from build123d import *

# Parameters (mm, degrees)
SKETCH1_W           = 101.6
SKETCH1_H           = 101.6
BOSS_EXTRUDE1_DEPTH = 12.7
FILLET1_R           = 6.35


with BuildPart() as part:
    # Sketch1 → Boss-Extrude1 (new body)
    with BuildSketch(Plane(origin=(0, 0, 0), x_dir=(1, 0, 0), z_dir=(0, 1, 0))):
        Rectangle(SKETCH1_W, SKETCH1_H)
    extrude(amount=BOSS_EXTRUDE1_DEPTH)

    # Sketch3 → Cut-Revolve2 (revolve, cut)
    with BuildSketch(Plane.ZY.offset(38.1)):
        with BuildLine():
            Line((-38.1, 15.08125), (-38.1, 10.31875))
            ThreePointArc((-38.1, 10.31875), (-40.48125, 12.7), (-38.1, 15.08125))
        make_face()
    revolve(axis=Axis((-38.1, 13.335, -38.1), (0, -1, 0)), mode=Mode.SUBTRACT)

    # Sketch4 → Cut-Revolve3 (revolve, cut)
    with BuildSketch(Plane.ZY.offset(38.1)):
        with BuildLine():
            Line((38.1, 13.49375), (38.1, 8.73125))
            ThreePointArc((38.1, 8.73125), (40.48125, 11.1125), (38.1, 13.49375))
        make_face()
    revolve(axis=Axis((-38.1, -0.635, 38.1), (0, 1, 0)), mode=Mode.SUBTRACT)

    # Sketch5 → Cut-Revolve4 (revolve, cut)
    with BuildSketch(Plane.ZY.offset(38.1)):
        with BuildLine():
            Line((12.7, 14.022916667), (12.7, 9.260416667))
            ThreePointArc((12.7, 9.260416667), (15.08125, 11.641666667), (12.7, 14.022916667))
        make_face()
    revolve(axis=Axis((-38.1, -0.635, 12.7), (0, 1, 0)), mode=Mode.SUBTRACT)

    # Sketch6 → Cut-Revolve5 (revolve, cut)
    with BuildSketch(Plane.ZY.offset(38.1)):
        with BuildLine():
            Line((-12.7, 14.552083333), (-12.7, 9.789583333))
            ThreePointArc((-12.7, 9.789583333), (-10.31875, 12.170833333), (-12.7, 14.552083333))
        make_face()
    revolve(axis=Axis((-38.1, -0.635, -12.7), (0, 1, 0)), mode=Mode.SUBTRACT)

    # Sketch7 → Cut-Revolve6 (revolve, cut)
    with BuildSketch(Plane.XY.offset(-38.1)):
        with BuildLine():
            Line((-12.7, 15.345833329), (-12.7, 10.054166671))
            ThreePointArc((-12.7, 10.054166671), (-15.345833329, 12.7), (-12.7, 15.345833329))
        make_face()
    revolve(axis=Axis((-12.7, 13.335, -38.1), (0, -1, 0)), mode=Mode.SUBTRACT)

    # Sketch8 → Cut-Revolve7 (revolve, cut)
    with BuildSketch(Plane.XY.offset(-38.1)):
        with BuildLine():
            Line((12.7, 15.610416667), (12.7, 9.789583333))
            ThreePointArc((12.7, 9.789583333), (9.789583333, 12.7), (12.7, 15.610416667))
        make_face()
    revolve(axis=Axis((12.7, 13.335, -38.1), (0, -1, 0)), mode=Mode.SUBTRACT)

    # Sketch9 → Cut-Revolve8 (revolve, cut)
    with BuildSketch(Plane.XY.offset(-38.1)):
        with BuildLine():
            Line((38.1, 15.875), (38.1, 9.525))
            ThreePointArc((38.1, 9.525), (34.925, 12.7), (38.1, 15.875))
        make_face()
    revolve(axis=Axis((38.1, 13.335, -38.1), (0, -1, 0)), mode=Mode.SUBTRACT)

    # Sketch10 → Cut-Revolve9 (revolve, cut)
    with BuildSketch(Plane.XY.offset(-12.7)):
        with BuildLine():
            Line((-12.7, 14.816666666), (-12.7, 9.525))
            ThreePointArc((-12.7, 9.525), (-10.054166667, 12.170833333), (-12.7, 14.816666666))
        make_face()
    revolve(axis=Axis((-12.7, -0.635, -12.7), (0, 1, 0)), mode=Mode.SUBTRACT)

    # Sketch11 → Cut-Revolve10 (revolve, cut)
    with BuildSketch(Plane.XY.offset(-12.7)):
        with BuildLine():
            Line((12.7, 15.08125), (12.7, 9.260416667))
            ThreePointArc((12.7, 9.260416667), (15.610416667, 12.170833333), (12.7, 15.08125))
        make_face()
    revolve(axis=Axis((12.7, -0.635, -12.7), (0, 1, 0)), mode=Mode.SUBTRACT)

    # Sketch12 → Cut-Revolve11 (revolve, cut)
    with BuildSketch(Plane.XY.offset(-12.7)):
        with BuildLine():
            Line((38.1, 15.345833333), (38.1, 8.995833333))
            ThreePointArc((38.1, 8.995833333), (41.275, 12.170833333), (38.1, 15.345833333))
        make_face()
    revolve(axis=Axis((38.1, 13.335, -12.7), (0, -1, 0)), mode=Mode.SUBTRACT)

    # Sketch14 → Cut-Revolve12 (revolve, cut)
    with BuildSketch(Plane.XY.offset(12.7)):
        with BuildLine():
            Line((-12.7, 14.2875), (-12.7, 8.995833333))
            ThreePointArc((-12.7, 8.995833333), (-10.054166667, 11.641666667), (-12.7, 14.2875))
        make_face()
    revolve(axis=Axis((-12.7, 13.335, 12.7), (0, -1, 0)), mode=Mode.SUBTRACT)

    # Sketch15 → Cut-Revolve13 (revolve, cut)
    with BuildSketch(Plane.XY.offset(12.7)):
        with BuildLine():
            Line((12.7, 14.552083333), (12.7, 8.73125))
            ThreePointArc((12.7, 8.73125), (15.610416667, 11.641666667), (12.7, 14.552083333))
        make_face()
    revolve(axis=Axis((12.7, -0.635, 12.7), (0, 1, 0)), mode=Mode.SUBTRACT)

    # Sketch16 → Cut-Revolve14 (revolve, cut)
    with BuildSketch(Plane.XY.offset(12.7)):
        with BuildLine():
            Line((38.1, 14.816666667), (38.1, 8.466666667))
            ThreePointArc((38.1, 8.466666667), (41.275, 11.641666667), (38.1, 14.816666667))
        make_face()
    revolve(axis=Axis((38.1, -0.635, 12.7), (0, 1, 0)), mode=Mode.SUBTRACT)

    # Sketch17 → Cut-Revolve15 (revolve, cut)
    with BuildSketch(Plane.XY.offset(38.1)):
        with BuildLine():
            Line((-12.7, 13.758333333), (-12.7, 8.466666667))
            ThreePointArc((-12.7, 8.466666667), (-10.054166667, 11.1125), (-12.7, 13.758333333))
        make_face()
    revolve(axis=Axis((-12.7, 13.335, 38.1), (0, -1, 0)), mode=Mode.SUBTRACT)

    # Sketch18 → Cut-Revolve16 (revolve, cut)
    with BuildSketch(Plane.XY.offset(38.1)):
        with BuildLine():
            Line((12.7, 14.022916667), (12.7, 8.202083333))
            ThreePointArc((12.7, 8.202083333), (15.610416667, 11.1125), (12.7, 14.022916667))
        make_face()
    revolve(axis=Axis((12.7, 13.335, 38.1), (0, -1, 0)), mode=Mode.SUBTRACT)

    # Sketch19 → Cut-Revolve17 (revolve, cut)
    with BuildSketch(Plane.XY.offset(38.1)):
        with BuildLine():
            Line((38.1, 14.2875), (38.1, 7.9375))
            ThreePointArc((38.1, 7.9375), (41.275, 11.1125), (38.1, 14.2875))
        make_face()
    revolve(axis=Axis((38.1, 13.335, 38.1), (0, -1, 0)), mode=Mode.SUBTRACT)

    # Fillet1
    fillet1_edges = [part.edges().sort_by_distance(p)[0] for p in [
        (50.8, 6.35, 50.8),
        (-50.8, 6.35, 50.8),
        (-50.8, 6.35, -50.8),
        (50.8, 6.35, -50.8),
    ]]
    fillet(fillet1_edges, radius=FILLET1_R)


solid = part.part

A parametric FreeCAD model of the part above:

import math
import FreeCAD as App
import Part
import Sketcher
Q = App.Units.Quantity


def edges_at(feature, points):
    """Names of the edges that pass closest to the given points."""
    edges = feature.Shape.Edges
    near = lambda p: min(range(len(edges)), key=lambda i: edges[i].distToShape(Part.Vertex(*p))[0])
    return sorted({f"Edge{near(p) + 1}" for p in points})

doc = App.newDocument("Part")
body = doc.addObject("PartDesign::Body", "Body")

sketch1 = doc.addObject("Sketcher::SketchObject", "Sketch")
body.addObject(sketch1)
sketch1.AttachmentSupport = (doc.XZ_Plane, [""])
sketch1.MapMode = "FlatFace"
sketch1.addGeometry([
    Part.LineSegment(App.Vector(-50.8, -50.8, 0), App.Vector(-50.8, 50.8, 0)),
    Part.LineSegment(App.Vector(-50.8, 50.8, 0), App.Vector(50.8, 50.8, 0)),
    Part.LineSegment(App.Vector(50.8, 50.8, 0), App.Vector(50.8, -50.8, 0)),
    Part.LineSegment(App.Vector(50.8, -50.8, 0), App.Vector(-50.8, -50.8, 0)),
], False)
sketch1.addConstraint([
    Sketcher.Constraint("Coincident", 0, 2, 1, 1),
    Sketcher.Constraint("Coincident", 1, 2, 2, 1),
    Sketcher.Constraint("Coincident", 2, 2, 3, 1),
    Sketcher.Constraint("Coincident", 3, 2, 0, 1),
    Sketcher.Constraint("Vertical", 0),
    Sketcher.Constraint("Horizontal", 1),
    Sketcher.Constraint("Vertical", 2),
    Sketcher.Constraint("Horizontal", 3),
    Sketcher.Constraint("Symmetric", 0, 2, 2, 2, -1, 1),
    Sketcher.Constraint("Equal", 3, 0),
    Sketcher.Constraint("DistanceX", 1, 1, 1, 2, Q("4 in")),
])
pad1 = doc.addObject("PartDesign::Pad", "Pad")
body.addObject(pad1)
pad1.Profile = sketch1
pad1.Length = Q("0.5 in")
pad1.Reversed = True

sketch2 = doc.addObject("Sketcher::SketchObject", "Sketch001")
body.addObject(sketch2)
sketch2.AttachmentSupport = (doc.YZ_Plane, [""])
sketch2.MapMode = "FlatFace"
sketch2.AttachmentOffset = App.Placement(App.Vector(0, 0, -1.5 * 25.4), App.Rotation())
sketch2.addGeometry([
    Part.LineSegment(App.Vector(10.31875, -38.1, 0), App.Vector(15.08125, -38.1, 0)),
    Part.ArcOfCircle(Part.Circle(App.Vector(12.7, -38.1, 0), App.Vector(0, 0, 1), 2.38125), math.radians(180), math.radians(360)),
], False)
sketch2.addGeometry(Part.LineSegment(App.Vector(15.08125, -38.1, 0), App.Vector(10.31875, -38.1, 0)), True)
sketch2.addConstraint([
    Sketcher.Constraint("Coincident", 0, 1, 1, 1),
    Sketcher.Constraint("Coincident", 1, 2, 0, 2),
    Sketcher.Constraint("Horizontal", 0),
    Sketcher.Constraint("Horizontal", 2),
    Sketcher.Constraint("Coincident", 2, 1, 1, 2),
    Sketcher.Constraint("Horizontal", 1, 3, 0, 1),
    Sketcher.Constraint("Equal", 0, 2),
    Sketcher.Constraint("Radius", 1, Q("0.09375 in")),
    Sketcher.Constraint("DistanceX", -1, 1, 1, 3, Q("0.5 in")),
    Sketcher.Constraint("DistanceY", 1, 3, -1, 1, Q("1.5 in")),
])
groove = doc.addObject("PartDesign::Groove", "Groove")
body.addObject(groove)
groove.Profile = sketch2
groove.ReferenceAxis = (sketch2, ["Axis0"])
groove.Angle = 360

sketch3 = doc.addObject("Sketcher::SketchObject", "Sketch002")
body.addObject(sketch3)
sketch3.AttachmentSupport = (doc.YZ_Plane, [""])
sketch3.MapMode = "FlatFace"
sketch3.AttachmentOffset = App.Placement(App.Vector(0, 0, -1.5 * 25.4), App.Rotation())
sketch3.addGeometry([
    Part.LineSegment(App.Vector(13.49375, 38.1, 0), App.Vector(8.73125, 38.1, 0)),
    Part.ArcOfCircle(Part.Circle(App.Vector(11.1125, 38.1, 0), App.Vector(0, 0, 1), 2.38125), math.radians(0), math.radians(180)),
], False)
sketch3.addGeometry(Part.LineSegment(App.Vector(8.73125, 38.1, 0), App.Vector(13.49375, 38.1, 0)), True)
sketch3.addConstraint([
    Sketcher.Constraint("Coincident", 0, 1, 1, 1),
    Sketcher.Constraint("Coincident", 1, 2, 0, 2),
    Sketcher.Constraint("Horizontal", 0),
    Sketcher.Constraint("Horizontal", 2),
    Sketcher.Constraint("Coincident", 2, 1, 1, 2),
    Sketcher.Constraint("Horizontal", 1, 3, 0, 1),
    Sketcher.Constraint("Equal", 0, 2),
    Sketcher.Constraint("Radius", 1, Q("0.09375 in")),
    Sketcher.Constraint("DistanceY", -1, 1, 1, 3, Q("1.5 in")),
    Sketcher.Constraint("DistanceX", -1, 1, 1, 3, Q("0.4375 in")),
])
groove2 = doc.addObject("PartDesign::Groove", "Groove001")
body.addObject(groove2)
groove2.Profile = sketch3
groove2.ReferenceAxis = (sketch3, ["Axis0"])
groove2.Angle = 360

sketch4 = doc.addObject("Sketcher::SketchObject", "Sketch003")
body.addObject(sketch4)
sketch4.AttachmentSupport = (doc.YZ_Plane, [""])
sketch4.MapMode = "FlatFace"
sketch4.AttachmentOffset = App.Placement(App.Vector(0, 0, -1.5 * 25.4), App.Rotation())
sketch4.addGeometry([
    Part.LineSegment(App.Vector(14.022917, 12.7, 0), App.Vector(9.260417, 12.7, 0)),
    Part.ArcOfCircle(Part.Circle(App.Vector(11.641667, 12.7, 0), App.Vector(0, 0, 1), 2.38125), math.radians(0), math.radians(180)),
], False)
sketch4.addGeometry(Part.LineSegment(App.Vector(9.260417, 12.7, 0), App.Vector(14.022917, 12.7, 0)), True)
sketch4.addConstraint([
    Sketcher.Constraint("Coincident", 0, 1, 1, 1),
    Sketcher.Constraint("Coincident", 1, 2, 0, 2),
    Sketcher.Constraint("Horizontal", 0),
    Sketcher.Constraint("Horizontal", 2),
    Sketcher.Constraint("Coincident", 2, 1, 1, 2),
    Sketcher.Constraint("Horizontal", 1, 3, 0, 1),
    Sketcher.Constraint("Equal", 0, 2),
    Sketcher.Constraint("Radius", 1, Q("0.09375 in")),
    Sketcher.Constraint("DistanceY", -1, 1, 1, 3, Q("0.5 in")),
    Sketcher.Constraint("DistanceX", -1, 1, 1, 3, 11.641667),
])
groove3 = doc.addObject("PartDesign::Groove", "Groove002")
body.addObject(groove3)
groove3.Profile = sketch4
groove3.ReferenceAxis = (sketch4, ["Axis0"])
groove3.Angle = 360

sketch5 = doc.addObject("Sketcher::SketchObject", "Sketch004")
body.addObject(sketch5)
sketch5.AttachmentSupport = (doc.YZ_Plane, [""])
sketch5.MapMode = "FlatFace"
sketch5.AttachmentOffset = App.Placement(App.Vector(0, 0, -1.5 * 25.4), App.Rotation())
sketch5.addGeometry([
    Part.LineSegment(App.Vector(14.552083, -12.7, 0), App.Vector(9.789583, -12.7, 0)),
    Part.ArcOfCircle(Part.Circle(App.Vector(12.170833, -12.7, 0), App.Vector(0, 0, 1), 2.38125), math.radians(0), math.radians(180)),
], False)
sketch5.addGeometry(Part.LineSegment(App.Vector(9.789583, -12.7, 0), App.Vector(14.552083, -12.7, 0)), True)
sketch5.addConstraint([
    Sketcher.Constraint("Coincident", 0, 1, 1, 1),
    Sketcher.Constraint("Coincident", 1, 2, 0, 2),
    Sketcher.Constraint("Horizontal", 0),
    Sketcher.Constraint("Horizontal", 2),
    Sketcher.Constraint("Coincident", 2, 1, 1, 2),
    Sketcher.Constraint("Horizontal", 1, 3, 0, 1),
    Sketcher.Constraint("Equal", 0, 2),
    Sketcher.Constraint("Radius", 1, Q("0.09375 in")),
    Sketcher.Constraint("DistanceY", 1, 3, -1, 1, Q("0.5 in")),
    Sketcher.Constraint("DistanceX", -1, 1, 1, 3, 12.170833),
])
groove4 = doc.addObject("PartDesign::Groove", "Groove003")
body.addObject(groove4)
groove4.Profile = sketch5
groove4.ReferenceAxis = (sketch5, ["Axis0"])
groove4.Angle = 360

sketch6 = doc.addObject("Sketcher::SketchObject", "Sketch005")
body.addObject(sketch6)
sketch6.AttachmentSupport = (doc.XY_Plane, [""])
sketch6.MapMode = "FlatFace"
sketch6.AttachmentOffset = App.Placement(App.Vector(0, 0, -1.5 * 25.4), App.Rotation())
sketch6.addGeometry([
    Part.LineSegment(App.Vector(-12.7, 10.054167, 0), App.Vector(-12.7, 15.345833, 0)),
    Part.ArcOfCircle(Part.Circle(App.Vector(-12.7, 12.7, 0), App.Vector(0, 0, 1), 2.645833), math.radians(90), math.radians(270)),
], False)
sketch6.addGeometry(Part.LineSegment(App.Vector(-12.7, 15.345833, 0), App.Vector(-12.7, 10.054167, 0)), True)
sketch6.addConstraint([
    Sketcher.Constraint("Coincident", 0, 1, 1, 2),
    Sketcher.Constraint("Coincident", 1, 1, 0, 2),
    Sketcher.Constraint("Vertical", 0),
    Sketcher.Constraint("Vertical", 2),
    Sketcher.Constraint("Coincident", 2, 1, 1, 1),
    Sketcher.Constraint("Vertical", 1, 3, 0, 1),
    Sketcher.Constraint("Equal", 0, 2),
    Sketcher.Constraint("DistanceX", 1, 3, -1, 1, Q("0.5 in")),
    Sketcher.Constraint("DistanceY", -1, 1, 1, 3, Q("0.5 in")),
    Sketcher.Constraint("Radius", 1, 2.645833),
])
groove5 = doc.addObject("PartDesign::Groove", "Groove004")
body.addObject(groove5)
groove5.Profile = sketch6
groove5.ReferenceAxis = (sketch6, ["Axis0"])
groove5.Angle = 360

sketch7 = doc.addObject("Sketcher::SketchObject", "Sketch006")
body.addObject(sketch7)
sketch7.AttachmentSupport = (doc.XY_Plane, [""])
sketch7.MapMode = "FlatFace"
sketch7.AttachmentOffset = App.Placement(App.Vector(0, 0, -1.5 * 25.4), App.Rotation())
sketch7.addGeometry([
    Part.LineSegment(App.Vector(12.7, 9.789583, 0), App.Vector(12.7, 15.610417, 0)),
    Part.ArcOfCircle(Part.Circle(App.Vector(12.7, 12.7, 0), App.Vector(0, 0, 1), 2.910417), math.radians(90), math.radians(270)),
], False)
sketch7.addGeometry(Part.LineSegment(App.Vector(12.7, 15.610417, 0), App.Vector(12.7, 9.789583, 0)), True)
sketch7.addConstraint([
    Sketcher.Constraint("Coincident", 0, 1, 1, 2),
    Sketcher.Constraint("Coincident", 1, 1, 0, 2),
    Sketcher.Constraint("Vertical", 0),
    Sketcher.Constraint("Vertical", 2),
    Sketcher.Constraint("Coincident", 2, 1, 1, 1),
    Sketcher.Constraint("Vertical", 1, 3, 0, 1),
    Sketcher.Constraint("Equal", 0, 2),
    Sketcher.Constraint("DistanceX", -1, 1, 1, 3, Q("0.5 in")),
    Sketcher.Constraint("DistanceY", -1, 1, 1, 3, Q("0.5 in")),
    Sketcher.Constraint("Radius", 1, 2.910417),
])
groove6 = doc.addObject("PartDesign::Groove", "Groove005")
body.addObject(groove6)
groove6.Profile = sketch7
groove6.ReferenceAxis = (sketch7, ["Axis0"])
groove6.Angle = 360

sketch8 = doc.addObject("Sketcher::SketchObject", "Sketch007")
body.addObject(sketch8)
sketch8.AttachmentSupport = (doc.XY_Plane, [""])
sketch8.MapMode = "FlatFace"
sketch8.AttachmentOffset = App.Placement(App.Vector(0, 0, -1.5 * 25.4), App.Rotation())
sketch8.addGeometry([
    Part.LineSegment(App.Vector(38.1, 9.525, 0), App.Vector(38.1, 15.875, 0)),
    Part.ArcOfCircle(Part.Circle(App.Vector(38.1, 12.7, 0), App.Vector(0, 0, 1), 3.175), math.radians(90), math.radians(270)),
], False)
sketch8.addGeometry(Part.LineSegment(App.Vector(38.1, 15.875, 0), App.Vector(38.1, 9.525, 0)), True)
sketch8.addConstraint([
    Sketcher.Constraint("Coincident", 0, 1, 1, 2),
    Sketcher.Constraint("Coincident", 1, 1, 0, 2),
    Sketcher.Constraint("Vertical", 0),
    Sketcher.Constraint("Vertical", 2),
    Sketcher.Constraint("Coincident", 2, 1, 1, 1),
    Sketcher.Constraint("Vertical", 1, 3, 0, 1),
    Sketcher.Constraint("Equal", 0, 2),
    Sketcher.Constraint("Radius", 1, Q("0.125 in")),
    Sketcher.Constraint("DistanceX", -1, 1, 1, 3, Q("1.5 in")),
    Sketcher.Constraint("DistanceY", -1, 1, 1, 3, Q("0.5 in")),
])
groove7 = doc.addObject("PartDesign::Groove", "Groove006")
body.addObject(groove7)
groove7.Profile = sketch8
groove7.ReferenceAxis = (sketch8, ["Axis0"])
groove7.Angle = 360

sketch9 = doc.addObject("Sketcher::SketchObject", "Sketch008")
body.addObject(sketch9)
sketch9.AttachmentSupport = (doc.XY_Plane, [""])
sketch9.MapMode = "FlatFace"
sketch9.AttachmentOffset = App.Placement(App.Vector(0, 0, -0.5 * 25.4), App.Rotation())
sketch9.addGeometry([
    Part.LineSegment(App.Vector(-12.7, 14.816667, 0), App.Vector(-12.7, 9.525, 0)),
    Part.ArcOfCircle(Part.Circle(App.Vector(-12.7, 12.170833, 0), App.Vector(0, 0, 1), 2.645833), math.radians(-90), math.radians(90)),
], False)
sketch9.addGeometry(Part.LineSegment(App.Vector(-12.7, 9.525, 0), App.Vector(-12.7, 14.816667, 0)), True)
sketch9.addConstraint([
    Sketcher.Constraint("Coincident", 0, 1, 1, 2),
    Sketcher.Constraint("Coincident", 1, 1, 0, 2),
    Sketcher.Constraint("Vertical", 0),
    Sketcher.Constraint("Vertical", 2),
    Sketcher.Constraint("Coincident", 2, 1, 1, 1),
    Sketcher.Constraint("Vertical", 1, 3, 0, 1),
    Sketcher.Constraint("Equal", 0, 2),
    Sketcher.Constraint("DistanceX", 1, 3, -1, 1, Q("0.5 in")),
    Sketcher.Constraint("DistanceY", -1, 1, 1, 1, Q("0.375 in")),
    Sketcher.Constraint("Radius", 1, 2.645833),
])
groove8 = doc.addObject("PartDesign::Groove", "Groove007")
body.addObject(groove8)
groove8.Profile = sketch9
groove8.ReferenceAxis = (sketch9, ["Axis0"])
groove8.Angle = 360

sketch10 = doc.addObject("Sketcher::SketchObject", "Sketch009")
body.addObject(sketch10)
sketch10.AttachmentSupport = (doc.XY_Plane, [""])
sketch10.MapMode = "FlatFace"
sketch10.AttachmentOffset = App.Placement(App.Vector(0, 0, -0.5 * 25.4), App.Rotation())
sketch10.addGeometry([
    Part.LineSegment(App.Vector(12.7, 15.08125, 0), App.Vector(12.7, 9.260417, 0)),
    Part.ArcOfCircle(Part.Circle(App.Vector(12.7, 12.170833, 0), App.Vector(0, 0, 1), 2.910417), math.radians(-90), math.radians(90)),
], False)
sketch10.addGeometry(Part.LineSegment(App.Vector(12.7, 9.260417, 0), App.Vector(12.7, 15.08125, 0)), True)
sketch10.addConstraint([
    Sketcher.Constraint("Coincident", 0, 1, 1, 2),
    Sketcher.Constraint("Coincident", 1, 1, 0, 2),
    Sketcher.Constraint("Vertical", 0),
    Sketcher.Constraint("Vertical", 2),
    Sketcher.Constraint("Coincident", 2, 1, 1, 1),
    Sketcher.Constraint("Vertical", 1, 3, 0, 1),
    Sketcher.Constraint("Equal", 0, 2),
    Sketcher.Constraint("DistanceX", -1, 1, 1, 3, Q("0.5 in")),
    Sketcher.Constraint("DistanceY", -1, 1, 0, 1, Q("0.59375 in")),
    Sketcher.Constraint("Radius", 1, 2.910417),
])
groove9 = doc.addObject("PartDesign::Groove", "Groove008")
body.addObject(groove9)
groove9.Profile = sketch10
groove9.ReferenceAxis = (sketch10, ["Axis0"])
groove9.Angle = 360

sketch11 = doc.addObject("Sketcher::SketchObject", "Sketch010")
body.addObject(sketch11)
sketch11.AttachmentSupport = (doc.XY_Plane, [""])
sketch11.MapMode = "FlatFace"
sketch11.AttachmentOffset = App.Placement(App.Vector(0, 0, -0.5 * 25.4), App.Rotation())
sketch11.addGeometry([
    Part.LineSegment(App.Vector(38.1, 15.345833, 0), App.Vector(38.1, 8.995833, 0)),
    Part.ArcOfCircle(Part.Circle(App.Vector(38.1, 12.170833, 0), App.Vector(0, 0, 1), 3.175), math.radians(-90), math.radians(90)),
], False)
sketch11.addGeometry(Part.LineSegment(App.Vector(38.1, 15.345833, 0), App.Vector(38.1, 8.995833, 0)), True)
sketch11.addConstraint([
    Sketcher.Constraint("Coincident", 0, 1, 1, 2),
    Sketcher.Constraint("Coincident", 1, 1, 0, 2),
    Sketcher.Constraint("Vertical", 0),
    Sketcher.Constraint("Vertical", 2),
    Sketcher.Constraint("Coincident", 2, 1, 0, 1),
    Sketcher.Constraint("Vertical", 1, 3, 0, 1),
    Sketcher.Constraint("Equal", 0, 2),
    Sketcher.Constraint("Radius", 1, Q("0.125 in")),
    Sketcher.Constraint("DistanceX", -1, 1, 1, 3, Q("1.5 in")),
    Sketcher.Constraint("DistanceY", -1, 1, 1, 3, 12.170833),
])
groove10 = doc.addObject("PartDesign::Groove", "Groove009")
body.addObject(groove10)
groove10.Profile = sketch11
groove10.ReferenceAxis = (sketch11, ["Axis0"])
groove10.Angle = 360

sketch12 = doc.addObject("Sketcher::SketchObject", "Sketch011")
body.addObject(sketch12)
sketch12.AttachmentSupport = (doc.XY_Plane, [""])
sketch12.MapMode = "FlatFace"
sketch12.AttachmentOffset = App.Placement(App.Vector(0, 0, 0.5 * 25.4), App.Rotation())
sketch12.addGeometry([
    Part.LineSegment(App.Vector(-12.7, 14.2875, 0), App.Vector(-12.7, 8.995833, 0)),
    Part.ArcOfCircle(Part.Circle(App.Vector(-12.7, 11.641667, 0), App.Vector(0, 0, 1), 2.645833), math.radians(-90), math.radians(90)),
], False)
sketch12.addGeometry(Part.LineSegment(App.Vector(-12.7, 14.2875, 0), App.Vector(-12.7, 8.995833, 0)), True)
sketch12.addConstraint([
    Sketcher.Constraint("Coincident", 0, 1, 1, 2),
    Sketcher.Constraint("Coincident", 1, 1, 0, 2),
    Sketcher.Constraint("Vertical", 0),
    Sketcher.Constraint("Vertical", 2),
    Sketcher.Constraint("Coincident", 2, 1, 0, 1),
    Sketcher.Constraint("Vertical", 1, 3, 0, 1),
    Sketcher.Constraint("Equal", 0, 2),
    Sketcher.Constraint("DistanceX", 1, 3, -1, 1, Q("0.5 in")),
    Sketcher.Constraint("DistanceY", -1, 1, 0, 1, Q("0.5625 in")),
    Sketcher.Constraint("Radius", 1, 2.645833),
])
groove11 = doc.addObject("PartDesign::Groove", "Groove010")
body.addObject(groove11)
groove11.Profile = sketch12
groove11.ReferenceAxis = (sketch12, ["Axis0"])
groove11.Angle = 360

sketch13 = doc.addObject("Sketcher::SketchObject", "Sketch012")
body.addObject(sketch13)
sketch13.AttachmentSupport = (doc.XY_Plane, [""])
sketch13.MapMode = "FlatFace"
sketch13.AttachmentOffset = App.Placement(App.Vector(0, 0, 0.5 * 25.4), App.Rotation())
sketch13.addGeometry([
    Part.LineSegment(App.Vector(12.7, 14.552083, 0), App.Vector(12.7, 8.73125, 0)),
    Part.ArcOfCircle(Part.Circle(App.Vector(12.7, 11.641667, 0), App.Vector(0, 0, 1), 2.910417), math.radians(-90), math.radians(90)),
], False)
sketch13.addGeometry(Part.LineSegment(App.Vector(12.7, 8.73125, 0), App.Vector(12.7, 14.552083, 0)), True)
sketch13.addConstraint([
    Sketcher.Constraint("Coincident", 0, 1, 1, 2),
    Sketcher.Constraint("Coincident", 1, 1, 0, 2),
    Sketcher.Constraint("Vertical", 0),
    Sketcher.Constraint("Vertical", 2),
    Sketcher.Constraint("Coincident", 2, 1, 1, 1),
    Sketcher.Constraint("Vertical", 1, 3, 0, 1),
    Sketcher.Constraint("Equal", 0, 2),
    Sketcher.Constraint("DistanceX", -1, 1, 1, 3, Q("0.5 in")),
    Sketcher.Constraint("DistanceY", -1, 1, 1, 1, Q("0.34375 in")),
    Sketcher.Constraint("Radius", 1, 2.910417),
])
groove12 = doc.addObject("PartDesign::Groove", "Groove011")
body.addObject(groove12)
groove12.Profile = sketch13
groove12.ReferenceAxis = (sketch13, ["Axis0"])
groove12.Angle = 360

sketch14 = doc.addObject("Sketcher::SketchObject", "Sketch013")
body.addObject(sketch14)
sketch14.AttachmentSupport = (doc.XY_Plane, [""])
sketch14.MapMode = "FlatFace"
sketch14.AttachmentOffset = App.Placement(App.Vector(0, 0, 0.5 * 25.4), App.Rotation())
sketch14.addGeometry([
    Part.LineSegment(App.Vector(38.1, 14.816667, 0), App.Vector(38.1, 8.466667, 0)),
    Part.ArcOfCircle(Part.Circle(App.Vector(38.1, 11.641667, 0), App.Vector(0, 0, 1), 3.175), math.radians(-90), math.radians(90)),
], False)
sketch14.addGeometry(Part.LineSegment(App.Vector(38.1, 8.466667, 0), App.Vector(38.1, 14.816667, 0)), True)
sketch14.addConstraint([
    Sketcher.Constraint("Coincident", 0, 1, 1, 2),
    Sketcher.Constraint("Coincident", 1, 1, 0, 2),
    Sketcher.Constraint("Vertical", 0),
    Sketcher.Constraint("Vertical", 2),
    Sketcher.Constraint("Coincident", 2, 1, 1, 1),
    Sketcher.Constraint("Vertical", 1, 3, 0, 1),
    Sketcher.Constraint("Equal", 0, 2),
    Sketcher.Constraint("Radius", 1, Q("0.125 in")),
    Sketcher.Constraint("DistanceX", -1, 1, 1, 3, Q("1.5 in")),
    Sketcher.Constraint("DistanceY", -1, 1, 1, 3, 11.641667),
])
groove13 = doc.addObject("PartDesign::Groove", "Groove012")
body.addObject(groove13)
groove13.Profile = sketch14
groove13.ReferenceAxis = (sketch14, ["Axis0"])
groove13.Angle = 360

sketch15 = doc.addObject("Sketcher::SketchObject", "Sketch014")
body.addObject(sketch15)
sketch15.AttachmentSupport = (doc.XY_Plane, [""])
sketch15.MapMode = "FlatFace"
sketch15.AttachmentOffset = App.Placement(App.Vector(0, 0, 1.5 * 25.4), App.Rotation())
sketch15.addGeometry([
    Part.LineSegment(App.Vector(-12.7, 13.758333, 0), App.Vector(-12.7, 8.466667, 0)),
    Part.ArcOfCircle(Part.Circle(App.Vector(-12.7, 11.1125, 0), App.Vector(0, 0, 1), 2.645833), math.radians(-90), math.radians(90)),
], False)
sketch15.addGeometry(Part.LineSegment(App.Vector(-12.7, 13.758333, 0), App.Vector(-12.7, 8.466667, 0)), True)
sketch15.addConstraint([
    Sketcher.Constraint("Coincident", 0, 1, 1, 2),
    Sketcher.Constraint("Coincident", 1, 1, 0, 2),
    Sketcher.Constraint("Vertical", 0),
    Sketcher.Constraint("Vertical", 2),
    Sketcher.Constraint("Coincident", 2, 1, 0, 1),
    Sketcher.Constraint("Vertical", 1, 3, 0, 1),
    Sketcher.Constraint("Equal", 0, 2),
    Sketcher.Constraint("DistanceX", 1, 3, -1, 1, Q("0.5 in")),
    Sketcher.Constraint("DistanceY", -1, 1, 1, 3, Q("0.4375 in")),
    Sketcher.Constraint("Radius", 1, 2.645833),
])
groove14 = doc.addObject("PartDesign::Groove", "Groove013")
body.addObject(groove14)
groove14.Profile = sketch15
groove14.ReferenceAxis = (sketch15, ["Axis0"])
groove14.Angle = 360

sketch16 = doc.addObject("Sketcher::SketchObject", "Sketch015")
body.addObject(sketch16)
sketch16.AttachmentSupport = (doc.XY_Plane, [""])
sketch16.MapMode = "FlatFace"
sketch16.AttachmentOffset = App.Placement(App.Vector(0, 0, 1.5 * 25.4), App.Rotation())
sketch16.addGeometry([
    Part.LineSegment(App.Vector(12.7, 14.022917, 0), App.Vector(12.7, 8.202083, 0)),
    Part.ArcOfCircle(Part.Circle(App.Vector(12.7, 11.1125, 0), App.Vector(0, 0, 1), 2.910417), math.radians(-90), math.radians(90)),
], False)
sketch16.addGeometry(Part.LineSegment(App.Vector(12.7, 14.022917, 0), App.Vector(12.7, 8.202083, 0)), True)
sketch16.addConstraint([
    Sketcher.Constraint("Coincident", 0, 1, 1, 2),
    Sketcher.Constraint("Coincident", 1, 1, 0, 2),
    Sketcher.Constraint("Vertical", 0),
    Sketcher.Constraint("Vertical", 2),
    Sketcher.Constraint("Coincident", 2, 1, 0, 1),
    Sketcher.Constraint("Vertical", 1, 3, 0, 1),
    Sketcher.Constraint("Equal", 0, 2),
    Sketcher.Constraint("DistanceX", -1, 1, 1, 3, Q("0.5 in")),
    Sketcher.Constraint("DistanceY", -1, 1, 1, 3, Q("0.4375 in")),
    Sketcher.Constraint("Radius", 1, 2.910417),
])
groove15 = doc.addObject("PartDesign::Groove", "Groove014")
body.addObject(groove15)
groove15.Profile = sketch16
groove15.ReferenceAxis = (sketch16, ["Axis0"])
groove15.Angle = 360

sketch17 = doc.addObject("Sketcher::SketchObject", "Sketch016")
body.addObject(sketch17)
sketch17.AttachmentSupport = (doc.XY_Plane, [""])
sketch17.MapMode = "FlatFace"
sketch17.AttachmentOffset = App.Placement(App.Vector(0, 0, 1.5 * 25.4), App.Rotation())
sketch17.addGeometry([
    Part.LineSegment(App.Vector(38.1, 14.2875, 0), App.Vector(38.1, 7.9375, 0)),
    Part.ArcOfCircle(Part.Circle(App.Vector(38.1, 11.1125, 0), App.Vector(0, 0, 1), 3.175), math.radians(-90), math.radians(90)),
], False)
sketch17.addGeometry(Part.LineSegment(App.Vector(38.1, 14.2875, 0), App.Vector(38.1, 7.9375, 0)), True)
sketch17.addConstraint([
    Sketcher.Constraint("Coincident", 0, 1, 1, 2),
    Sketcher.Constraint("Coincident", 1, 1, 0, 2),
    Sketcher.Constraint("Vertical", 0),
    Sketcher.Constraint("Vertical", 2),
    Sketcher.Constraint("Coincident", 2, 1, 0, 1),
    Sketcher.Constraint("Vertical", 1, 3, 0, 1),
    Sketcher.Constraint("Equal", 0, 2),
    Sketcher.Constraint("Radius", 1, Q("0.125 in")),
    Sketcher.Constraint("DistanceX", -1, 1, 1, 3, Q("1.5 in")),
    Sketcher.Constraint("DistanceY", -1, 1, 1, 3, Q("0.4375 in")),
])
groove16 = doc.addObject("PartDesign::Groove", "Groove015")
body.addObject(groove16)
groove16.Profile = sketch17
groove16.ReferenceAxis = (sketch17, ["Axis0"])
groove16.Angle = 360
doc.recompute()

fillet = doc.addObject("PartDesign::Fillet", "Fillet")
body.addObject(fillet)
fillet.Base = (groove16, edges_at(groove16, [
    (50.8, 6.35, 50.8),
    (-50.8, 6.35, 50.8),
    (-50.8, 6.35, -50.8),
    (50.8, 6.35, -50.8),
]))
fillet.Radius = Q("0.25 in")

doc.recompute()
